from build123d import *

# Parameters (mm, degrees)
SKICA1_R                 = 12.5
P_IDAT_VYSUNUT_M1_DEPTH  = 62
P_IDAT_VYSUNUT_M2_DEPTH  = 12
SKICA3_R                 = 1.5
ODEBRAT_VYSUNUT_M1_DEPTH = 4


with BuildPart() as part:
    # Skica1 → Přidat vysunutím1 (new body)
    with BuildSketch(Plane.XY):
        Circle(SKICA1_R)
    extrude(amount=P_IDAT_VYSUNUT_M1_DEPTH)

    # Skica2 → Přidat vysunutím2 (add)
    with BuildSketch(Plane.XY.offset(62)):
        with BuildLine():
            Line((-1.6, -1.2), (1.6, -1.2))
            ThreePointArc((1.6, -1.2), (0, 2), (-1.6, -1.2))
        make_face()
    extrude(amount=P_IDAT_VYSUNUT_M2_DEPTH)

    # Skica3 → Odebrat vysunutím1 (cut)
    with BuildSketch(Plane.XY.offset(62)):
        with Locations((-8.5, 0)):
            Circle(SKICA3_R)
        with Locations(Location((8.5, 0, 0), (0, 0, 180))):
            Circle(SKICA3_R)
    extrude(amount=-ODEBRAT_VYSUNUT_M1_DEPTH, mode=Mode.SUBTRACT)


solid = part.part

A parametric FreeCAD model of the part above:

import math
import FreeCAD as App
import Part
import Sketcher

V = App.Vector
Q = App.Units.Quantity

doc = App.newDocument("Part")
body = doc.addObject("PartDesign::Body", "Body")

sketch1 = doc.addObject("Sketcher::SketchObject", "Sketch")
body.addObject(sketch1)
sketch1.AttachmentSupport = (doc.XY_Plane, [""])
sketch1.MapMode = "FlatFace"
sketch1.addGeometry(Part.Circle(V(0, 0, 0), V(0, 0, 1), 12.5), False)
sketch1.addConstraint([
    Sketcher.Constraint("Coincident", 0, 3, -1, 1),
    Sketcher.Constraint("Diameter", 0, Q("25 mm")),
])
pad1 = doc.addObject("PartDesign::Pad", "Pad")
body.addObject(pad1)
pad1.Profile = sketch1
pad1.Length = 62

sketch2 = doc.addObject("Sketcher::SketchObject", "Sketch001")
body.addObject(sketch2)
sketch2.AttachmentSupport = (doc.XY_Plane, [""])
sketch2.MapMode = "FlatFace"
sketch2.AttachmentOffset = App.Placement(V(0, 0, 62), App.Rotation())
sketch2.addGeometry([
    Part.LineSegment(V(-1.6, -1.2, 0), V(1.6, -1.2, 0)),
    Part.ArcOfCircle(Part.Circle(V(0, 0, 0), V(0, 0, 1), 2), math.radians(-36.869898), math.radians(216.869898)),
], False)
sketch2.addConstraint([
    Sketcher.Constraint("Coincident", 0, 1, 1, 2),
    Sketcher.Constraint("Coincident", 1, 1, 0, 2),
    Sketcher.Constraint("Horizontal", 0),
    Sketcher.Constraint("Coincident", 1, 3, -1, 1),
    Sketcher.Constraint("Radius", 1, Q("2 mm")),
    Sketcher.Constraint("DistanceX", 0, 1, 0, 2, Q("3.2 mm")),
])
pad2 = doc.addObject("PartDesign::Pad", "Pad001")
body.addObject(pad2)
pad2.Profile = sketch2
pad2.Length = 12

sketch3 = doc.addObject("Sketcher::SketchObject", "Sketch002")
body.addObject(sketch3)
sketch3.AttachmentSupport = (doc.XY_Plane, [""])
sketch3.MapMode = "FlatFace"
sketch3.AttachmentOffset = App.Placement(V(0, 0, 62), App.Rotation())
sketch3.addGeometry([
    Part.Circle(V(-8.5, 0, 0), V(0, 0, 1), 1.5),
    Part.Circle(V(8.5, 0, 0), V(0, 0, 1), 1.5),
], False)
sketch3.addConstraint([
    Sketcher.Constraint("Equal", 0, 1),
    Sketcher.Constraint("Symmetric", 0, 3, 1, 3, -1, 1),
    Sketcher.Constraint("PointOnObject", 0, 3, -1),
    Sketcher.Constraint("Diameter", 0, Q("3 mm")),
    Sketcher.Constraint("DistanceX", 0, 3, 1, 3, Q("17 mm")),
])
pocket1 = doc.addObject("PartDesign::Pocket", "Pocket")
body.addObject(pocket1)
pocket1.Profile = sketch3
pocket1.Length = 4

doc.recompute()
